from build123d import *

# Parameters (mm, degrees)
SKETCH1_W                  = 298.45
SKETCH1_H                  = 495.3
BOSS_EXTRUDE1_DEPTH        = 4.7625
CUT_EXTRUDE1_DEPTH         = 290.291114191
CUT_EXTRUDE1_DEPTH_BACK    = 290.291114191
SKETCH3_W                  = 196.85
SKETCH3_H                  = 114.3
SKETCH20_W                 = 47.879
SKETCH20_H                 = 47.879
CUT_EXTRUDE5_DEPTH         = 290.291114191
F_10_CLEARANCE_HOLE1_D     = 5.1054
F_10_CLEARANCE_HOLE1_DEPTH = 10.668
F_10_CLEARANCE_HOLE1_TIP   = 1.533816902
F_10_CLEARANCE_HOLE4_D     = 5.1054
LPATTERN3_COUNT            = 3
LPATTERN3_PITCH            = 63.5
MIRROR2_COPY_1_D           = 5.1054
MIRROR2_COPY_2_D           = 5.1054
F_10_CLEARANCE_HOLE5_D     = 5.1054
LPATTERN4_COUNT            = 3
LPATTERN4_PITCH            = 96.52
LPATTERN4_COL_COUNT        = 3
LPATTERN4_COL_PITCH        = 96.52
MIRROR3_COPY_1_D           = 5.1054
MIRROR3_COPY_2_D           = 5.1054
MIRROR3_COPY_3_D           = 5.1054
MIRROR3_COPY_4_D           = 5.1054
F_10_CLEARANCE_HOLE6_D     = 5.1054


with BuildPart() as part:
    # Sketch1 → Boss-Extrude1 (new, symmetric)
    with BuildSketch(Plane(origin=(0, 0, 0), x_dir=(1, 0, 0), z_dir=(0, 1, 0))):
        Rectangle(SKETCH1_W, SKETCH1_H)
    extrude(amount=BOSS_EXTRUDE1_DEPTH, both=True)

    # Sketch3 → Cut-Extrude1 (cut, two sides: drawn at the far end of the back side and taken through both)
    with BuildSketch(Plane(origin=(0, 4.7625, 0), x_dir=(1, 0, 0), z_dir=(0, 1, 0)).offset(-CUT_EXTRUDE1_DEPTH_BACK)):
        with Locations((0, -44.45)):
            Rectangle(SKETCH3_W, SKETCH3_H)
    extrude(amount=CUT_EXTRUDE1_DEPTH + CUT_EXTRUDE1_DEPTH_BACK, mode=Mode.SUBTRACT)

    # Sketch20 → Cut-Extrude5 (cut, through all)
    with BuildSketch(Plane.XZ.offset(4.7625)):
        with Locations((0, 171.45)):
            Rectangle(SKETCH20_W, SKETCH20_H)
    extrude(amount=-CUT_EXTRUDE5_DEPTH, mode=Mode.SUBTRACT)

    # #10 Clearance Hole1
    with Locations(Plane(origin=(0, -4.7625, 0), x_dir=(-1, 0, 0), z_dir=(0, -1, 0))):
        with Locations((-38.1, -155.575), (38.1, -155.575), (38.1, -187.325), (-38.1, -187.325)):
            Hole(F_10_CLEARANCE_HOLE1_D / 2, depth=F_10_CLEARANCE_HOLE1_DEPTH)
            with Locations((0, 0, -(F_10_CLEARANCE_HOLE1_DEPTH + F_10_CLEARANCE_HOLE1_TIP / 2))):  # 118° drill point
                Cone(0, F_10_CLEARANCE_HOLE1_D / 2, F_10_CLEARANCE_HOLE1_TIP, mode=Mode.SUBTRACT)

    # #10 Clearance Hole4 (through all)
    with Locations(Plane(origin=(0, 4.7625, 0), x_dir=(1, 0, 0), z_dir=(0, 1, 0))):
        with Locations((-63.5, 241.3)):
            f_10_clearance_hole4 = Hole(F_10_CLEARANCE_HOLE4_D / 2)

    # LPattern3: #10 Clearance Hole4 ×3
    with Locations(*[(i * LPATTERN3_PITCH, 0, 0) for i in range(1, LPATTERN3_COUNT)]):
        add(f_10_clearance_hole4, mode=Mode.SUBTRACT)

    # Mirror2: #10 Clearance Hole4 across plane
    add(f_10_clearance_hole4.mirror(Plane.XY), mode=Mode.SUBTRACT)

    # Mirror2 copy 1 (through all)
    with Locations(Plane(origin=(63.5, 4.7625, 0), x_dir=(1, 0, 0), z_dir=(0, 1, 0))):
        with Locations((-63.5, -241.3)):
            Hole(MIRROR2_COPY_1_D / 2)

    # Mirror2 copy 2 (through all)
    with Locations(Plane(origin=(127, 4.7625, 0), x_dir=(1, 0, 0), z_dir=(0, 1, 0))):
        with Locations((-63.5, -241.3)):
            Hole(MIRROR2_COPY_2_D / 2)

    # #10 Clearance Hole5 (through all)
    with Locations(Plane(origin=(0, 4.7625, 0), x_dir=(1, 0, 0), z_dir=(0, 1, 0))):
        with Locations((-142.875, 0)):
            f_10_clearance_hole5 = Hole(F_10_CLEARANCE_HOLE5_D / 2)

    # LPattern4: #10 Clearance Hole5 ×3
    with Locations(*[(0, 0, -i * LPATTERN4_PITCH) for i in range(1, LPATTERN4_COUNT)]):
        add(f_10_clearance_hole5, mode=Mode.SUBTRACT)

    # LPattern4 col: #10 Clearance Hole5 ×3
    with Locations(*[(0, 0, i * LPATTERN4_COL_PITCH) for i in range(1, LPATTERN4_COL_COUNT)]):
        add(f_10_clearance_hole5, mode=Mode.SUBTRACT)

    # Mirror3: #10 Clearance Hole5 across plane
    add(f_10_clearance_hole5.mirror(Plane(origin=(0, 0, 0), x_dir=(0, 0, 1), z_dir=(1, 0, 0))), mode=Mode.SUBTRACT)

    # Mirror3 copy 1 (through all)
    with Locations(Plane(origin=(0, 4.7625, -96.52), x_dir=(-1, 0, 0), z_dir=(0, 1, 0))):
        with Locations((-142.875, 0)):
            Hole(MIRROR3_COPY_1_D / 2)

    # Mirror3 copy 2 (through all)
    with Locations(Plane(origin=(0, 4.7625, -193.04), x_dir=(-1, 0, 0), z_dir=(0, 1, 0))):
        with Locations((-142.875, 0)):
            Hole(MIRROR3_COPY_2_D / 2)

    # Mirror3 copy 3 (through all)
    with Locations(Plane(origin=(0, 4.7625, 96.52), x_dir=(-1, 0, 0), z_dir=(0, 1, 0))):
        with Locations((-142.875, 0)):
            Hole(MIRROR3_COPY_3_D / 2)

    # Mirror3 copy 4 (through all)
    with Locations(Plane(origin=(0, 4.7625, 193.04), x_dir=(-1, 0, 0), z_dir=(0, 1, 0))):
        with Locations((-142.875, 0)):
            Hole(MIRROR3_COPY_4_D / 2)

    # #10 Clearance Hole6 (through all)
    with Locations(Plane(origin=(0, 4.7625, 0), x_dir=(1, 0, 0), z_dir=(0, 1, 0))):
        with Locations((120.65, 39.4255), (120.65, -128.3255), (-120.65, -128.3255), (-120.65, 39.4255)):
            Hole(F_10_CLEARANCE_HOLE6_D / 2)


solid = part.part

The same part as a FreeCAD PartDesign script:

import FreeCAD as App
import Part
import Sketcher
from FreeCAD import Vector
Q = App.Units.Quantity


def add_polygon(sketch, points):
    """Adds a closed chain of lines whose ends are joined by coincident constraints."""
    first, n = sketch.GeometryCount, len(points)
    for a, b in zip(points, points[1:] + points[:1]):
        sketch.addGeometry(Part.LineSegment(App.Vector(*a, 0), App.Vector(*b, 0)), False)
    for i in range(n):
        sketch.addConstraint(Sketcher.Constraint("Coincident", first + i, 2, first + (i + 1) % n, 1))

doc = App.newDocument("Part")
body = doc.addObject("PartDesign::Body", "Body")

# Sketch on XZ plane
sketch1 = body.newObject("Sketcher::SketchObject", "Sketch")
sketch1.AttachmentSupport = (doc.getObject("XZ_Plane"), [""])
sketch1.MapMode = "FlatFace"
add_polygon(sketch1, [(-149, -248), (-149, 248), (149, 248), (149, -248)])  # lines 0-3
sketch1.addConstraint(Sketcher.Constraint("Vertical", 0))
sketch1.addConstraint(Sketcher.Constraint("Horizontal", 1))
sketch1.addConstraint(Sketcher.Constraint("Vertical", 2))
sketch1.addConstraint(Sketcher.Constraint("Horizontal", 3))
sketch1.addConstraint(Sketcher.Constraint("Symmetric", 0, 2, 2, 2, -1, 1))
sketch1.addConstraint(Sketcher.Constraint("DistanceY", 0, 1, 0, 2, Q("19.5 in")))
sketch1.addConstraint(Sketcher.Constraint("DistanceX", 1, 1, 1, 2, Q("11.75 in")))
pad1 = body.newObject("PartDesign::Pad", "Pad")
pad1.Profile = sketch1
pad1.Length = Q("0.375 in")
pad1.Midplane = True

# Sketch on XZ plane
sketch2 = body.newObject("Sketcher::SketchObject", "Sketch001")
sketch2.AttachmentSupport = (doc.getObject("XZ_Plane"), [""])
sketch2.MapMode = "FlatFace"
sketch2.AttachmentOffset = App.Placement(Vector(0, 0, -0.1875 * 25.4), App.Rotation())
add_polygon(sketch2, [(-98, -13), (-98, 102), (98, 102), (98, -13)])  # lines 0-3
sketch2.addConstraint(Sketcher.Constraint("Vertical", 0))
sketch2.addConstraint(Sketcher.Constraint("Horizontal", 1))
sketch2.addConstraint(Sketcher.Constraint("Vertical", 2))
sketch2.addConstraint(Sketcher.Constraint("Horizontal", 3))
sketch2.addConstraint(Sketcher.Constraint("DistanceY", 0, 1, 0, 2, Q("4.5 in")))
sketch2.addConstraint(Sketcher.Constraint("DistanceY", -1, 1, 0, 2, Q("4 in")))
sketch2.addConstraint(Sketcher.Constraint("DistanceX", 1, 1, 1, 2, Q("7.75 in")))
sketch2.addConstraint(Sketcher.Constraint("DistanceX", 0, 2, -1, 1, Q("3.875 in")))
pocket1 = body.newObject("PartDesign::Pocket", "Pocket")
pocket1.Profile = sketch2
pocket1.Type = "ThroughAll"
pocket1.Midplane = True

# Sketch on XZ plane
sketch3 = body.newObject("Sketcher::SketchObject", "Sketch002")
sketch3.AttachmentSupport = (doc.getObject("XZ_Plane"), [""])
sketch3.MapMode = "FlatFace"
sketch3.AttachmentOffset = App.Placement(Vector(0, 0, 0.1875 * 25.4), App.Rotation())
add_polygon(sketch3, [(-24, 195), (-24, 148), (24, 148), (24, 195)])  # lines 0-3
sketch3.addConstraint(Sketcher.Constraint("Vertical", 0))
sketch3.addConstraint(Sketcher.Constraint("Horizontal", 1))
sketch3.addConstraint(Sketcher.Constraint("Vertical", 2))
sketch3.addConstraint(Sketcher.Constraint("Horizontal", 3))
sketch3.addConstraint(Sketcher.Constraint("Equal", 3, 0))
sketch3.addConstraint(Sketcher.Constraint("DistanceX", 1, 1, 1, 2, Q("1.885 in")))
sketch3.addConstraint(Sketcher.Constraint("DistanceX", 0, 2, -1, 1, Q("0.9425 in")))
sketch3.addConstraint(Sketcher.Constraint("DistanceY", -1, 1, 0, 2, Q("5.8075 in")))
pocket2 = body.newObject("PartDesign::Pocket", "Pocket001")
pocket2.Profile = sketch3
pocket2.Type = "ThroughAll"

# Sketch on XZ plane
sketch4 = body.newObject("Sketcher::SketchObject", "Sketch003")
sketch4.AttachmentSupport = (doc.getObject("XZ_Plane"), [""])
sketch4.MapMode = "FlatFace"
sketch4.AttachmentOffset = App.Placement(Vector(0, 0, 0.1875 * 25.4), App.Rotation())
sketch4.addGeometry(Part.Circle(Vector(38.1, 155.6, 0), Vector(0, 0, 1), 2.6), False)
sketch4.addGeometry(Part.Circle(Vector(-38.1, 155.6, 0), Vector(0, 0, 1), 2.6), False)
sketch4.addGeometry(Part.Circle(Vector(-38.1, 187.3, 0), Vector(0, 0, 1), 2.6), False)
sketch4.addGeometry(Part.Circle(Vector(38.1, 187.3, 0), Vector(0, 0, 1), 2.6), False)
sketch4.addConstraint(Sketcher.Constraint("Equal", 0, 1))
sketch4.addConstraint(Sketcher.Constraint("Equal", 1, 2))
sketch4.addConstraint(Sketcher.Constraint("Equal", 2, 3))
sketch4.addConstraint(Sketcher.Constraint("Symmetric", 0, 3, 1, 3, -2))
sketch4.addConstraint(Sketcher.Constraint("Symmetric", 2, 3, 3, 3, -2))
sketch4.addConstraint(Sketcher.Constraint("Vertical", 1, 3, 2, 3))
sketch4.addConstraint(Sketcher.Constraint("Diameter", 0, Q("0.201 in")))
sketch4.addConstraint(Sketcher.Constraint("DistanceX", 1, 3, 0, 3, Q("3 in")))
sketch4.addConstraint(Sketcher.Constraint("DistanceY", 1, 3, 2, 3, Q("1.25 in")))
sketch4.addConstraint(Sketcher.Constraint("DistanceY", -1, 1, 0, 3, Q("6.125 in")))
doc.recompute()
hole = body.newObject("PartDesign::Hole", "Hole")
hole.Profile = sketch4
hole.ThreadType = "None"
hole.Diameter = Q("0.201 in")
hole.DepthType = "Dimension"
hole.Depth = Q("0.42 in")
hole.DrillPoint = "Angled"
hole.DrillPointAngle = 118

# Sketch on XZ plane
sketch5 = body.newObject("Sketcher::SketchObject", "Sketch004")
sketch5.AttachmentSupport = (doc.getObject("XZ_Plane"), [""])
sketch5.MapMode = "FlatFace"
sketch5.AttachmentOffset = App.Placement(Vector(0, 0, -0.1875 * 25.4), App.Rotation())
sketch5.addGeometry(Part.Circle(Vector(-63.5, -241.3, 0), Vector(0, 0, 1), 2.6), False)
sketch5.addConstraint(Sketcher.Constraint("Diameter", 0, Q("0.201 in")))
sketch5.addConstraint(Sketcher.Constraint("DistanceX", 0, 3, -1, 1, Q("2.5 in")))
sketch5.addConstraint(Sketcher.Constraint("DistanceY", 0, 3, -1, 1, Q("9.5 in")))
doc.recompute()
hole2 = body.newObject("PartDesign::Hole", "Hole001")
hole2.Profile = sketch5
hole2.ThreadType = "None"
hole2.Diameter = Q("0.201 in")
hole2.DepthType = "ThroughAll"
hole2.Reversed = True
doc.recompute()

linearpattern = body.newObject("PartDesign::LinearPattern", "LinearPattern")
linearpattern.Originals = [hole2]
linearpattern.Direction = (doc.getObject("X_Axis"), [""])
linearpattern.Mode = "offset"
linearpattern.Offset = Q("2.5 in")
linearpattern.Occurrences = 3
body.Tip = linearpattern
doc.recompute()

mirrored = body.newObject("PartDesign::Mirrored", "Mirrored")
mirrored.Originals = [hole2]
mirrored.MirrorPlane = (doc.getObject("XY_Plane"), [""])
body.Tip = mirrored

# Sketch on XZ plane
sketch6 = body.newObject("Sketcher::SketchObject", "Sketch005")
sketch6.AttachmentSupport = (doc.getObject("XZ_Plane"), [""])
sketch6.MapMode = "FlatFace"
sketch6.AttachmentOffset = App.Placement(Vector(0, 0, -0.1875 * 25.4), App.Rotation())
sketch6.addGeometry(Part.Circle(Vector(0, 241.3, 0), Vector(0, 0, 1), 2.6), False)
sketch6.addConstraint(Sketcher.Constraint("PointOnObject", 0, 3, -2))
sketch6.addConstraint(Sketcher.Constraint("Diameter", 0, Q("0.201 in")))
sketch6.addConstraint(Sketcher.Constraint("DistanceY", -1, 1, 0, 3, Q("9.5 in")))
doc.recompute()
hole3 = body.newObject("PartDesign::Hole", "Hole002")
hole3.Profile = sketch6
hole3.ThreadType = "None"
hole3.Diameter = Q("0.201 in")
hole3.DepthType = "ThroughAll"
hole3.Reversed = True

# Sketch on XZ plane
sketch7 = body.newObject("Sketcher::SketchObject", "Sketch006")
sketch7.AttachmentSupport = (doc.getObject("XZ_Plane"), [""])
sketch7.MapMode = "FlatFace"
sketch7.AttachmentOffset = App.Placement(Vector(0, 0, -0.1875 * 25.4), App.Rotation())
sketch7.addGeometry(Part.Circle(Vector(63.5, 241.3, 0), Vector(0, 0, 1), 2.6), False)
sketch7.addConstraint(Sketcher.Constraint("Diameter", 0, Q("0.201 in")))
sketch7.addConstraint(Sketcher.Constraint("DistanceX", -1, 1, 0, 3, Q("2.5 in")))
sketch7.addConstraint(Sketcher.Constraint("DistanceY", -1, 1, 0, 3, Q("9.5 in")))
doc.recompute()
hole4 = body.newObject("PartDesign::Hole", "Hole003")
hole4.Profile = sketch7
hole4.ThreadType = "None"
hole4.Diameter = Q("0.201 in")
hole4.DepthType = "ThroughAll"
hole4.Reversed = True

# Sketch on XZ plane
sketch8 = body.newObject("Sketcher::SketchObject", "Sketch007")
sketch8.AttachmentSupport = (doc.getObject("XZ_Plane"), [""])
sketch8.MapMode = "FlatFace"
sketch8.AttachmentOffset = App.Placement(Vector(0, 0, -0.1875 * 25.4), App.Rotation())
sketch8.addGeometry(Part.Circle(Vector(-142.9, 0, 0), Vector(0, 0, 1), 2.6), False)
sketch8.addConstraint(Sketcher.Constraint("PointOnObject", 0, 3, -1))
sketch8.addConstraint(Sketcher.Constraint("Diameter", 0, Q("0.201 in")))
sketch8.addConstraint(Sketcher.Constraint("DistanceX", 0, 3, -1, 1, Q("5.625 in")))
doc.recompute()
hole5 = body.newObject("PartDesign::Hole", "Hole004")
hole5.Profile = sketch8
hole5.ThreadType = "None"
hole5.Diameter = Q("0.201 in")
hole5.DepthType = "ThroughAll"
hole5.Reversed = True
doc.recompute()

linearpattern2 = body.newObject("PartDesign::LinearPattern", "LinearPattern001")
linearpattern2.Originals = [hole5]
linearpattern2.Direction = (doc.getObject("Z_Axis"), [""])
linearpattern2.Mode = "offset"
linearpattern2.Offset = Q("3.8 in")
linearpattern2.Occurrences = 3
linearpattern2.Reversed = True
body.Tip = linearpattern2
doc.recompute()

linearpattern3 = body.newObject("PartDesign::LinearPattern", "LinearPattern002")
linearpattern3.Originals = [hole5]
linearpattern3.Direction = (doc.getObject("Z_Axis"), [""])
linearpattern3.Mode = "offset"
linearpattern3.Offset = Q("3.8 in")
linearpattern3.Occurrences = 3
body.Tip = linearpattern3
doc.recompute()

mirrored2 = body.newObject("PartDesign::Mirrored", "Mirrored001")
mirrored2.Originals = [hole5]
mirrored2.MirrorPlane = (doc.getObject("YZ_Plane"), [""])
body.Tip = mirrored2

# Sketch on XZ plane
sketch9 = body.newObject("Sketcher::SketchObject", "Sketch008")
sketch9.AttachmentSupport = (doc.getObject("XZ_Plane"), [""])
sketch9.MapMode = "FlatFace"
sketch9.AttachmentOffset = App.Placement(Vector(0, 0, -0.1875 * 25.4), App.Rotation())
sketch9.addGeometry(Part.Circle(Vector(142.9, -96.5, 0), Vector(0, 0, 1), 2.6), False)
sketch9.addConstraint(Sketcher.Constraint("Diameter", 0, Q("0.201 in")))
sketch9.addConstraint(Sketcher.Constraint("DistanceY", 0, 3, -1, 1, Q("3.8 in")))
sketch9.addConstraint(Sketcher.Constraint("DistanceX", -1, 1, 0, 3, Q("5.625 in")))
doc.recompute()
hole6 = body.newObject("PartDesign::Hole", "Hole005")
hole6.Profile = sketch9
hole6.ThreadType = "None"
hole6.Diameter = Q("0.201 in")
hole6.DepthType = "ThroughAll"
hole6.Reversed = True

# Sketch on XZ plane
sketch10 = body.newObject("Sketcher::SketchObject", "Sketch009")
sketch10.AttachmentSupport = (doc.getObject("XZ_Plane"), [""])
sketch10.MapMode = "FlatFace"
sketch10.AttachmentOffset = App.Placement(Vector(0, 0, -0.1875 * 25.4), App.Rotation())
sketch10.addGeometry(Part.Circle(Vector(142.9, -193, 0), Vector(0, 0, 1), 2.6), False)
sketch10.addConstraint(Sketcher.Constraint("Diameter", 0, Q("0.201 in")))
sketch10.addConstraint(Sketcher.Constraint("DistanceY", 0, 3, -1, 1, Q("7.6 in")))
sketch10.addConstraint(Sketcher.Constraint("DistanceX", -1, 1, 0, 3, Q("5.625 in")))
doc.recompute()
hole7 = body.newObject("PartDesign::Hole", "Hole006")
hole7.Profile = sketch10
hole7.ThreadType = "None"
hole7.Diameter = Q("0.201 in")
hole7.DepthType = "ThroughAll"
hole7.Reversed = True

# Sketch on XZ plane
sketch11 = body.newObject("Sketcher::SketchObject", "Sketch010")
sketch11.AttachmentSupport = (doc.getObject("XZ_Plane"), [""])
sketch11.MapMode = "FlatFace"
sketch11.AttachmentOffset = App.Placement(Vector(0, 0, -0.1875 * 25.4), App.Rotation())
sketch11.addGeometry(Part.Circle(Vector(142.9, 96.5, 0), Vector(0, 0, 1), 2.6), False)
sketch11.addConstraint(Sketcher.Constraint("Diameter", 0, Q("0.201 in")))
sketch11.addConstraint(Sketcher.Constraint("DistanceY", -1, 1, 0, 3, Q("3.8 in")))
sketch11.addConstraint(Sketcher.Constraint("DistanceX", -1, 1, 0, 3, Q("5.625 in")))
doc.recompute()
hole8 = body.newObject("PartDesign::Hole", "Hole007")
hole8.Profile = sketch11
hole8.ThreadType = "None"
hole8.Diameter = Q("0.201 in")
hole8.DepthType = "ThroughAll"
hole8.Reversed = True

# Sketch on XZ plane
sketch12 = body.newObject("Sketcher::SketchObject", "Sketch011")
sketch12.AttachmentSupport = (doc.getObject("XZ_Plane"), [""])
sketch12.MapMode = "FlatFace"
sketch12.AttachmentOffset = App.Placement(Vector(0, 0, -0.1875 * 25.4), App.Rotation())
sketch12.addGeometry(Part.Circle(Vector(142.9, 193, 0), Vector(0, 0, 1), 2.6), False)
sketch12.addConstraint(Sketcher.Constraint("Diameter", 0, Q("0.201 in")))
sketch12.addConstraint(Sketcher.Constraint("DistanceY", -1, 1, 0, 3, Q("7.6 in")))
sketch12.addConstraint(Sketcher.Constraint("DistanceX", -1, 1, 0, 3, Q("5.625 in")))
doc.recompute()
hole9 = body.newObject("PartDesign::Hole", "Hole008")
hole9.Profile = sketch12
hole9.ThreadType = "None"
hole9.Diameter = Q("0.201 in")
hole9.DepthType = "ThroughAll"
hole9.Reversed = True

# Sketch on XZ plane
sketch13 = body.newObject("Sketcher::SketchObject", "Sketch012")
sketch13.AttachmentSupport = (doc.getObject("XZ_Plane"), [""])
sketch13.MapMode = "FlatFace"
sketch13.AttachmentOffset = App.Placement(Vector(0, 0, -0.1875 * 25.4), App.Rotation())
sketch13.addGeometry(Part.Circle(Vector(120.7, -39.4, 0), Vector(0, 0, 1), 2.6), False)
sketch13.addGeometry(Part.Circle(Vector(120.7, 128.3, 0), Vector(0, 0, 1), 2.6), False)
sketch13.addGeometry(Part.Circle(Vector(-120.7, 128.3, 0), Vector(0, 0, 1), 2.6), False)
sketch13.addGeometry(Part.Circle(Vector(-120.7, -39.4, 0), Vector(0, 0, 1), 2.6), False)
sketch13.addConstraint(Sketcher.Constraint("Equal", 0, 1))
sketch13.addConstraint(Sketcher.Constraint("Equal", 1, 2))
sketch13.addConstraint(Sketcher.Constraint("Equal", 2, 3))
sketch13.addConstraint(Sketcher.Constraint("Symmetric", 1, 3, 2, 3, -2))
sketch13.addConstraint(Sketcher.Constraint("Symmetric", 0, 3, 3, 3, -2))
sketch13.addConstraint(Sketcher.Constraint("Vertical", 0, 3, 1, 3))
sketch13.addConstraint(Sketcher.Constraint("Diameter", 0, Q("0.201 in")))
sketch13.addConstraint(Sketcher.Constraint("DistanceX", 2, 3, 1, 3, Q("9.5 in")))
sketch13.addConstraint(Sketcher.Constraint("DistanceY", 0, 3, -1, 1, Q("39.4255 mm")))
sketch13.addConstraint(Sketcher.Constraint("DistanceY", -1, 1, 1, 3, Q("128.3255 mm")))
doc.recompute()
hole10 = body.newObject("PartDesign::Hole", "Hole009")
hole10.Profile = sketch13
hole10.ThreadType = "None"
hole10.Diameter = Q("0.201 in")
hole10.DepthType = "ThroughAll"
hole10.Reversed = True

doc.recompute()
